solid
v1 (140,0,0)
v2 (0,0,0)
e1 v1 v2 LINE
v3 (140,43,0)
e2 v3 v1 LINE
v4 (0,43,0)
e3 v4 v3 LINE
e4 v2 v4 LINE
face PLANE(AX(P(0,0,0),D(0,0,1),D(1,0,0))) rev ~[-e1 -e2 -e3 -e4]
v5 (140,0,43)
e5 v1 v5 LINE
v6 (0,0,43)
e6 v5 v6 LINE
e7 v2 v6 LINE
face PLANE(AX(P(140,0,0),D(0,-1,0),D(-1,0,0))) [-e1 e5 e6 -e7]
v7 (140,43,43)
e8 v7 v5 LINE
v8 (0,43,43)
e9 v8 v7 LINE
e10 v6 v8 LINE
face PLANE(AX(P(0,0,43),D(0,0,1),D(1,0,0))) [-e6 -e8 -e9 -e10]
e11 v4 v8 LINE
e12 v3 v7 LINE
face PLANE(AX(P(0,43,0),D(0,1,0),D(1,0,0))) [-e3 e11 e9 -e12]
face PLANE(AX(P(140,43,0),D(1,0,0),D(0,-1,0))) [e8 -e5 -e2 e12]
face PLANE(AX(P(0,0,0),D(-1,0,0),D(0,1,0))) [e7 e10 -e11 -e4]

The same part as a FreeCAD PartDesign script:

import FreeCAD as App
import Part
import Sketcher
Q = App.Units.Quantity


def add_polygon(sketch, points):
    """Adds a closed chain of lines whose ends are joined by coincident constraints."""
    first, n = sketch.GeometryCount, len(points)
    for a, b in zip(points, points[1:] + points[:1]):
        sketch.addGeometry(Part.LineSegment(App.Vector(*a, 0), App.Vector(*b, 0)), False)
    for i in range(n):
        sketch.addConstraint(Sketcher.Constraint("Coincident", first + i, 2, first + (i + 1) % n, 1))

doc = App.newDocument("Part")
body = doc.addObject("PartDesign::Body", "Body")

sketch1 = body.newObject("Sketcher::SketchObject", "Sketch")
sketch1.AttachmentSupport = (doc.getObject("XY_Plane"), [""])
sketch1.MapMode = "FlatFace"
add_polygon(sketch1, [(140, 43), (0, 43), (0, 0), (140, 0)])
sketch1.addConstraint(Sketcher.Constraint("Horizontal", 0))
sketch1.addConstraint(Sketcher.Constraint("Vertical", 1))
sketch1.addConstraint(Sketcher.Constraint("Horizontal", 2))
sketch1.addConstraint(Sketcher.Constraint("Vertical", 3))
sketch1.addConstraint(Sketcher.Constraint("Coincident", 1, 2, -1, 1))
sketch1.addConstraint(Sketcher.Constraint("DistanceX", 0, 2, 0, 1, Q("140 mm")))
sketch1.addConstraint(Sketcher.Constraint("DistanceY", 1, 2, 1, 1, Q("43 mm")))
pad1 = body.newObject("PartDesign::Pad", "Pad")
pad1.Profile = sketch1
pad1.Length = 43

doc.recompute()
